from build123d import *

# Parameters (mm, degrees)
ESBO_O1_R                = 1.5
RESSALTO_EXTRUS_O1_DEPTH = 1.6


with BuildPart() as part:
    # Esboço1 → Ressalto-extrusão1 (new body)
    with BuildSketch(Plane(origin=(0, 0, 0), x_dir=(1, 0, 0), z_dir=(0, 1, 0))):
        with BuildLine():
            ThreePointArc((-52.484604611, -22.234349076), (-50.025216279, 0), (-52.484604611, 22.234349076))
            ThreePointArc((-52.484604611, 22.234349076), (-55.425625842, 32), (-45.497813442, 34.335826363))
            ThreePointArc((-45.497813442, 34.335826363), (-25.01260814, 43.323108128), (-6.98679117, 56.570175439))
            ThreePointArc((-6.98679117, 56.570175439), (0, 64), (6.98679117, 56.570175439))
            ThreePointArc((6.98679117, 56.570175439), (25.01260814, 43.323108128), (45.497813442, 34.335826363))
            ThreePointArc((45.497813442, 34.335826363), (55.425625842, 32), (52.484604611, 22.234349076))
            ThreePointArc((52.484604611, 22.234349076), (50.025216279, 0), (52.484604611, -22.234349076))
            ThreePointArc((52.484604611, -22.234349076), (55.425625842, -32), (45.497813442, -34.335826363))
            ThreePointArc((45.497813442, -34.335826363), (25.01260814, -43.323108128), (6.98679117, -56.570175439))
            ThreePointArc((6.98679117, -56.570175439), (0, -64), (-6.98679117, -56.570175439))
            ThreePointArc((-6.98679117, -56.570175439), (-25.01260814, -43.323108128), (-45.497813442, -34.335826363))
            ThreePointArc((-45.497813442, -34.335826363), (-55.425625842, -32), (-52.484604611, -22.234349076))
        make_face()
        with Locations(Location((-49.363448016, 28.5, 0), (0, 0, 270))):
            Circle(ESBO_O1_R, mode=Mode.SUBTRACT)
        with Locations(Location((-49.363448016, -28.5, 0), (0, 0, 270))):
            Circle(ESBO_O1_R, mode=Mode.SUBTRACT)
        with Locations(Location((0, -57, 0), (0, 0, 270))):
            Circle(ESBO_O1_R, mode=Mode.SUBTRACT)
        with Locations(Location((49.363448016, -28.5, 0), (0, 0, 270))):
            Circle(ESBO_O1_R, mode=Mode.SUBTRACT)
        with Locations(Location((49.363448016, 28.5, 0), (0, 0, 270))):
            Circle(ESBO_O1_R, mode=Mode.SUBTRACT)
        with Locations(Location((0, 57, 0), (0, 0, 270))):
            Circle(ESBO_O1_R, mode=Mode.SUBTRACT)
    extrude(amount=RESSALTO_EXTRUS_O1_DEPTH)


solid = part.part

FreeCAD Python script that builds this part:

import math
import FreeCAD as App
import Part
import Sketcher

V = App.Vector
Q = App.Units.Quantity

doc = App.newDocument("Part")
body = doc.addObject("PartDesign::Body", "Body")

# Sketch on XZ plane
sketch1 = body.newObject("Sketcher::SketchObject", "Sketch")
sketch1.AttachmentSupport = (doc.getObject("XZ_Plane"), [""])
sketch1.MapMode = "FlatFace"
sketch1.addGeometry([
    Part.ArcOfCircle(Part.Circle(V(-151.8, 0, 0), V(0, 0, 1), 101.7), math.radians(-13), math.radians(13)),  # 0
    Part.ArcOfCircle(Part.Circle(V(-49.4, 28.5, 0), V(0, 0, 1), 7), math.radians(56), math.radians(244)),  # 1
    Part.ArcOfCircle(Part.Circle(V(-75.9, 131.4, 0), V(0, 0, 1), 101.7), math.radians(-73), math.radians(-47)),  # 2
    Part.ArcOfCircle(Part.Circle(V(0, 57, 0), V(0, 0, 1), 7), math.radians(-4), math.radians(184)),  # 3
    Part.ArcOfCircle(Part.Circle(V(75.9, 131.4, 0), V(0, 0, 1), 101.7), math.radians(-133), math.radians(-107)),  # 4
    Part.ArcOfCircle(Part.Circle(V(49.4, 28.5, 0), V(0, 0, 1), 7), math.radians(-64), math.radians(124)),  # 5
    Part.ArcOfCircle(Part.Circle(V(151.8, 0, 0), V(0, 0, 1), 101.7), math.radians(167), math.radians(193)),  # 6
    Part.ArcOfCircle(Part.Circle(V(49.4, -28.5, 0), V(0, 0, 1), 7), math.radians(-124), math.radians(64)),  # 7
    Part.ArcOfCircle(Part.Circle(V(75.9, -131.4, 0), V(0, 0, 1), 101.7), math.radians(107), math.radians(133)),  # 8
    Part.ArcOfCircle(Part.Circle(V(0, -57, 0), V(0, 0, 1), 7), math.radians(176), math.radians(364)),  # 9
    Part.ArcOfCircle(Part.Circle(V(-75.9, -131.4, 0), V(0, 0, 1), 101.7), math.radians(47), math.radians(73)),  # 10
    Part.ArcOfCircle(Part.Circle(V(-49.4, -28.5, 0), V(0, 0, 1), 7), math.radians(116), math.radians(304)),  # 11
    Part.Circle(V(49.4, 28.5, 0), V(0, 0, 1), 1.5),  # 12
    Part.Circle(V(0, 57, 0), V(0, 0, 1), 1.5),  # 13
    Part.Circle(V(-49.4, 28.5, 0), V(0, 0, 1), 1.5),  # 14
    Part.Circle(V(49.4, -28.5, 0), V(0, 0, 1), 1.5),  # 15
    Part.Circle(V(-49.4, -28.5, 0), V(0, 0, 1), 1.5),  # 16
    Part.Circle(V(0, -57, 0), V(0, 0, 1), 1.5),  # 17
], False)
sketch1.addConstraint([
    Sketcher.Constraint("Coincident", 0, 2, 1, 2),
    Sketcher.Constraint("Coincident", 1, 1, 2, 1),
    Sketcher.Constraint("Coincident", 2, 2, 3, 2),
    Sketcher.Constraint("Coincident", 3, 1, 4, 1),
    Sketcher.Constraint("Coincident", 4, 2, 5, 2),
    Sketcher.Constraint("Coincident", 5, 1, 6, 1),
    Sketcher.Constraint("Coincident", 6, 2, 7, 2),
    Sketcher.Constraint("Coincident", 7, 1, 8, 1),
    Sketcher.Constraint("Coincident", 8, 2, 9, 2),
    Sketcher.Constraint("Coincident", 9, 1, 10, 1),
    Sketcher.Constraint("Coincident", 10, 2, 11, 2),
    Sketcher.Constraint("Coincident", 11, 1, 0, 1),
    Sketcher.Constraint("Coincident", 12, 3, 5, 3),
    Sketcher.Constraint("Coincident", 13, 3, 3, 3),
    Sketcher.Constraint("Coincident", 14, 3, 1, 3),
    Sketcher.Constraint("Coincident", 15, 3, 7, 3),
    Sketcher.Constraint("Coincident", 16, 3, 11, 3),
    Sketcher.Constraint("Coincident", 17, 3, 9, 3),
    Sketcher.Constraint("Equal", 0, 2),
    Sketcher.Constraint("Equal", 1, 3),
    Sketcher.Constraint("Equal", 2, 4),
    Sketcher.Constraint("Equal", 3, 5),
    Sketcher.Constraint("Equal", 4, 6),
    Sketcher.Constraint("Equal", 5, 7),
    Sketcher.Constraint("Equal", 6, 8),
    Sketcher.Constraint("Equal", 7, 9),
    Sketcher.Constraint("Equal", 8, 10),
    Sketcher.Constraint("Equal", 9, 11),
    Sketcher.Constraint("Equal", 12, 13),
    Sketcher.Constraint("Equal", 13, 14),
    Sketcher.Constraint("Equal", 14, 15),
    Sketcher.Constraint("Equal", 15, 16),
    Sketcher.Constraint("Equal", 16, 17),
    Sketcher.Constraint("Symmetric", 0, 3, 6, 3, -1, 1),
    Sketcher.Constraint("Symmetric", 1, 3, 7, 3, -1, 1),
    Sketcher.Constraint("Symmetric", 2, 3, 8, 3, -1, 1),
    Sketcher.Constraint("Symmetric", 3, 3, 9, 3, -1, 1),
    Sketcher.Constraint("Symmetric", 4, 3, 10, 3, -1, 1),
    Sketcher.Constraint("Symmetric", 5, 3, 11, 3, -1, 1),
    Sketcher.Constraint("Symmetric", 2, 3, 4, 3, -2),
    Sketcher.Constraint("Symmetric", 1, 3, 5, 3, -2),
    Sketcher.Constraint("PointOnObject", 0, 3, -1),
    Sketcher.Constraint("PointOnObject", 3, 3, -2),
    Sketcher.Constraint("Diameter", 12, Q("3 mm")),
    Sketcher.Constraint("Radius", 1, Q("7 mm")),
    Sketcher.Constraint("DistanceY", -1, 1, 3, 3, Q("57 mm")),
    Sketcher.Constraint("DistanceY", 7, 3, 5, 3, Q("57 mm")),
    Sketcher.Constraint("Radius", 0, Q("101.735636 mm")),
    Sketcher.Constraint("DistanceX", 0, 3, 5, 3, Q("201.1243 mm")),
    Sketcher.Constraint("DistanceY", 6, 2, 5, 1, Q("44.468698 mm")),
    Sketcher.Constraint("DistanceX", -1, 1, 3, 1, Q("6.986791 mm")),
    Sketcher.Constraint("DistanceX", 2, 3, 4, 3, Q("151.760852 mm")),
])
pad1 = body.newObject("PartDesign::Pad", "Pad")
pad1.Profile = sketch1
pad1.Length = 1.6
pad1.Reversed = True

doc.recompute()
